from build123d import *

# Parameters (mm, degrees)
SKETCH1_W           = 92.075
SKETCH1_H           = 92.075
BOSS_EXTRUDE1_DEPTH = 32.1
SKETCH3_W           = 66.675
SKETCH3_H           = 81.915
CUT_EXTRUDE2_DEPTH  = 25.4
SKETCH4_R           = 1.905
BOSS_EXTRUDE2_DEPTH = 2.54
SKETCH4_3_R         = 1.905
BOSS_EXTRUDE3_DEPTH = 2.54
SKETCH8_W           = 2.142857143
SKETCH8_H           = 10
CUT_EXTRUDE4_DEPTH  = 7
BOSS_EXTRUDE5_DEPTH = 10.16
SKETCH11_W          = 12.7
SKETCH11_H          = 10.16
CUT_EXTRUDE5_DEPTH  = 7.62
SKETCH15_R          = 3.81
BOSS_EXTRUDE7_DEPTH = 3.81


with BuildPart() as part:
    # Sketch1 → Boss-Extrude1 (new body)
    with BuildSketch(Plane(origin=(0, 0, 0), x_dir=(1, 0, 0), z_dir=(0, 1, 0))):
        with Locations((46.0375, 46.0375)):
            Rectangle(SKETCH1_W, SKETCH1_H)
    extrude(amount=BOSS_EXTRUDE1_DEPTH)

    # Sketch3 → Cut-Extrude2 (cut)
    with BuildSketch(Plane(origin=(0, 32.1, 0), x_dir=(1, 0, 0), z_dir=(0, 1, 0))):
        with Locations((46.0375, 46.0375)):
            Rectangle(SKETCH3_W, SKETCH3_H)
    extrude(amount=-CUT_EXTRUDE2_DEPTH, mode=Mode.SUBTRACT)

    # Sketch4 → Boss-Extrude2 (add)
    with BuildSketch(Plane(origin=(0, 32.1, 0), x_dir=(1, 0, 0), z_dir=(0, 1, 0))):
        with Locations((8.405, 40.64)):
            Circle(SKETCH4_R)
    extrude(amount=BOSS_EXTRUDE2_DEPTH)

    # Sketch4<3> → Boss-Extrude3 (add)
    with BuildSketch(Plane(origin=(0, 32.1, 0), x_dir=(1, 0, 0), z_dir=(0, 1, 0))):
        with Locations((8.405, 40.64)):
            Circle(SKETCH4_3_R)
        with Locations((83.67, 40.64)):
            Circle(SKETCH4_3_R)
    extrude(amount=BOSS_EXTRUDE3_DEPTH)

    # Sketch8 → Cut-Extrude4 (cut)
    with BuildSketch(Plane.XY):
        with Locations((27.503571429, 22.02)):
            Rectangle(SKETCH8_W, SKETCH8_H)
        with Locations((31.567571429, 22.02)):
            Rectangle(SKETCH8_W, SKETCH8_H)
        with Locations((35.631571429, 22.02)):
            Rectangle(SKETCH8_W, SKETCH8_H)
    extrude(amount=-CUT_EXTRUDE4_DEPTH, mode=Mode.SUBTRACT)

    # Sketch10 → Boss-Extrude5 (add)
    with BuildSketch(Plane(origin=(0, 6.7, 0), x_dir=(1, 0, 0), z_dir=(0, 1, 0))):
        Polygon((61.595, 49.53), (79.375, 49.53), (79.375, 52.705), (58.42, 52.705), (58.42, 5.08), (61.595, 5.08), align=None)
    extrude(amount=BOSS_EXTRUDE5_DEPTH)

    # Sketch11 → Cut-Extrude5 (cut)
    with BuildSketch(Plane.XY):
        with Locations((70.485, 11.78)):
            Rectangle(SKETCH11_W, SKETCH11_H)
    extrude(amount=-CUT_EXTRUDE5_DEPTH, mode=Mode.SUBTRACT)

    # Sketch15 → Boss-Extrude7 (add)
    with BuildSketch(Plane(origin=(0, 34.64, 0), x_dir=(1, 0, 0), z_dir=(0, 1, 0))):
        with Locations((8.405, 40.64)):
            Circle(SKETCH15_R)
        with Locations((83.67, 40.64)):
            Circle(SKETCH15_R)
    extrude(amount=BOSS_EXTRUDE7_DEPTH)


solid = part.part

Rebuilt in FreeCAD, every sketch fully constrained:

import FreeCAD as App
import Part
import Sketcher
Q = App.Units.Quantity


def add_polygon(sketch, points):
    """Adds a closed chain of lines whose ends are joined by coincident constraints."""
    first, n = sketch.GeometryCount, len(points)
    for a, b in zip(points, points[1:] + points[:1]):
        sketch.addGeometry(Part.LineSegment(App.Vector(*a, 0), App.Vector(*b, 0)), False)
    for i in range(n):
        sketch.addConstraint(Sketcher.Constraint("Coincident", first + i, 2, first + (i + 1) % n, 1))

doc = App.newDocument("Part")
body = doc.addObject("PartDesign::Body", "Body")

# Sketch on XZ plane
sketch1 = doc.addObject("Sketcher::SketchObject", "Sketch")
body.addObject(sketch1)
sketch1.AttachmentSupport = (doc.XZ_Plane, [""])
sketch1.MapMode = "FlatFace"
add_polygon(sketch1, [(0, -92), (0, 0), (92, 0), (92, -92)])  # lines 0-3
sketch1.addConstraint([
    Sketcher.Constraint("Vertical", 0),
    Sketcher.Constraint("Horizontal", 1),
    Sketcher.Constraint("Vertical", 2),
    Sketcher.Constraint("Horizontal", 3),
    Sketcher.Constraint("Coincident", 0, 2, -1, 1),
    Sketcher.Constraint("Equal", 3, 0),
    Sketcher.Constraint("DistanceX", 1, 1, 1, 2, Q("3.625 in")),
])
pad1 = doc.addObject("PartDesign::Pad", "Pad")
body.addObject(pad1)
pad1.Profile = sketch1
pad1.Length = 32.1
pad1.Reversed = True

# Sketch on XZ plane
sketch2 = doc.addObject("Sketcher::SketchObject", "Sketch001")
body.addObject(sketch2)
sketch2.AttachmentSupport = (doc.XZ_Plane, [""])
sketch2.MapMode = "FlatFace"
sketch2.AttachmentOffset = App.Placement(App.Vector(0, 0, -32.1), App.Rotation())
add_polygon(sketch2, [(13, -87), (13, -5), (79, -5), (79, -87)])  # lines 0-3
sketch2.addConstraint([
    Sketcher.Constraint("Vertical", 0),
    Sketcher.Constraint("Horizontal", 1),
    Sketcher.Constraint("Vertical", 2),
    Sketcher.Constraint("Horizontal", 3),
    Sketcher.Constraint("DistanceX", -1, 1, 0, 2, Q("0.5 in")),
    Sketcher.Constraint("DistanceY", 0, 2, -1, 1, Q("0.2 in")),
    Sketcher.Constraint("DistanceX", 1, 1, 1, 2, Q("2.625 in")),
    Sketcher.Constraint("DistanceY", 0, 1, 0, 2, Q("3.225 in")),
])
pocket1 = doc.addObject("PartDesign::Pocket", "Pocket")
body.addObject(pocket1)
pocket1.Profile = sketch2
pocket1.Length = Q("1 in")
pocket1.Reversed = True

# Sketch on XZ plane
sketch3 = doc.addObject("Sketcher::SketchObject", "Sketch002")
body.addObject(sketch3)
sketch3.AttachmentSupport = (doc.XZ_Plane, [""])
sketch3.MapMode = "FlatFace"
sketch3.AttachmentOffset = App.Placement(App.Vector(0, 0, -32.1), App.Rotation())
sketch3.addGeometry(Part.Circle(App.Vector(8.4, -40.6, 0), App.Vector(0, 0, 1), 1.9), False)
sketch3.addConstraint([
    Sketcher.Constraint("Diameter", 0, Q("0.15 in")),
    Sketcher.Constraint("DistanceY", 0, 3, -1, 1, Q("1.6 in")),
    Sketcher.Constraint("DistanceX", -1, 1, 0, 3, Q("8.405 mm")),
])
pad2 = doc.addObject("PartDesign::Pad", "Pad001")
body.addObject(pad2)
pad2.Profile = sketch3
pad2.Length = Q("0.1 in")
pad2.Reversed = True

# Sketch on XZ plane
sketch4 = doc.addObject("Sketcher::SketchObject", "Sketch003")
body.addObject(sketch4)
sketch4.AttachmentSupport = (doc.XZ_Plane, [""])
sketch4.MapMode = "FlatFace"
sketch4.AttachmentOffset = App.Placement(App.Vector(0, 0, -32.1), App.Rotation())
sketch4.addGeometry([
    Part.Circle(App.Vector(8.4, -40.6, 0), App.Vector(0, 0, 1), 1.9),
    Part.Circle(App.Vector(83.7, -40.6, 0), App.Vector(0, 0, 1), 1.9),
], False)
sketch4.addConstraint([
    Sketcher.Constraint("Equal", 0, 1),
    Sketcher.Constraint("Horizontal", 0, 3, 1, 3),
    Sketcher.Constraint("Diameter", 0, Q("0.15 in")),
    Sketcher.Constraint("DistanceY", 0, 3, -1, 1, Q("1.6 in")),
    Sketcher.Constraint("DistanceX", -1, 1, 0, 3, Q("8.405 mm")),
    Sketcher.Constraint("DistanceX", -1, 1, 1, 3, Q("83.67 mm")),
])
pad3 = doc.addObject("PartDesign::Pad", "Pad002")
body.addObject(pad3)
pad3.Profile = sketch4
pad3.Length = Q("0.1 in")
pad3.Reversed = True

# Sketch on XY plane
sketch5 = doc.addObject("Sketcher::SketchObject", "Sketch004")
body.addObject(sketch5)
sketch5.AttachmentSupport = (doc.XY_Plane, [""])
sketch5.MapMode = "FlatFace"
add_polygon(sketch5, [(26.4, 27), (26.4, 17), (28.6, 17), (28.6, 27)])  # lines 0-3
add_polygon(sketch5, [(30.5, 27), (30.5, 17), (32.6, 17), (32.6, 27)])  # lines 4-7
add_polygon(sketch5, [(34.6, 27), (34.6, 17), (36.7, 17), (36.7, 27)])  # lines 8-11
sketch5.addConstraint([
    Sketcher.Constraint("Vertical", 0),
    Sketcher.Constraint("Horizontal", 1),
    Sketcher.Constraint("Vertical", 2),
    Sketcher.Constraint("Horizontal", 3),
    Sketcher.Constraint("Vertical", 4),
    Sketcher.Constraint("Horizontal", 5),
    Sketcher.Constraint("Vertical", 6),
    Sketcher.Constraint("Horizontal", 7),
    Sketcher.Constraint("Vertical", 8),
    Sketcher.Constraint("Horizontal", 9),
    Sketcher.Constraint("Vertical", 10),
    Sketcher.Constraint("Horizontal", 11),
    Sketcher.Constraint("Horizontal", 1, 2, 4, 2),
    Sketcher.Constraint("Horizontal", 3, 2, 6, 2),
    Sketcher.Constraint("Horizontal", 5, 2, 8, 2),
    Sketcher.Constraint("Horizontal", 7, 2, 10, 2),
    Sketcher.Constraint("Equal", 3, 5),
    Sketcher.Constraint("Equal", 7, 9),
    Sketcher.Constraint("DistanceX", 0, 2, 4, 2, Q("0.16 in")),
    Sketcher.Constraint("DistanceX", 4, 2, 8, 2, Q("0.16 in")),
    Sketcher.Constraint("DistanceX", -1, 1, 1, 2, Q("1.125 in")),
    Sketcher.Constraint("DistanceY", 0, 2, 0, 1, Q("10 mm")),
    Sketcher.Constraint("DistanceY", -1, 1, 0, 2, Q("17.02 mm")),
    Sketcher.Constraint("DistanceX", 1, 1, 1, 2, Q("2.142857 mm")),
])
pocket2 = doc.addObject("PartDesign::Pocket", "Pocket001")
body.addObject(pocket2)
pocket2.Profile = sketch5
pocket2.Length = 7

# Sketch on XZ plane
sketch6 = doc.addObject("Sketcher::SketchObject", "Sketch005")
body.addObject(sketch6)
sketch6.AttachmentSupport = (doc.XZ_Plane, [""])
sketch6.MapMode = "FlatFace"
sketch6.AttachmentOffset = App.Placement(App.Vector(0, 0, -6.7), App.Rotation())
add_polygon(sketch6, [(61.6, -49.5), (79.4, -49.5), (79.4, -52.7), (58.4, -52.7), (58.4, -5.1), (61.6, -5.1)])  # lines 0-5
sketch6.addConstraint([
    Sketcher.Constraint("Horizontal", 0),
    Sketcher.Constraint("Vertical", 1),
    Sketcher.Constraint("Horizontal", 2),
    Sketcher.Constraint("Vertical", 3),
    Sketcher.Constraint("Horizontal", 4),
    Sketcher.Constraint("Vertical", 5),
    Sketcher.Constraint("Equal", 4, 1),
    Sketcher.Constraint("DistanceX", 0, 1, 0, 2, Q("0.7 in")),
    Sketcher.Constraint("DistanceY", 5, 2, 5, 1, Q("1.75 in")),
    Sketcher.Constraint("DistanceX", -1, 1, 2, 2, Q("2.3 in")),
    Sketcher.Constraint("DistanceY", 3, 2, -1, 1, Q("0.2 in")),
    Sketcher.Constraint("DistanceX", 2, 2, 2, 1, Q("0.825 in")),
])
pad4 = doc.addObject("PartDesign::Pad", "Pad003")
body.addObject(pad4)
pad4.Profile = sketch6
pad4.Length = Q("0.4 in")
pad4.Reversed = True

# Sketch on XY plane
sketch7 = doc.addObject("Sketcher::SketchObject", "Sketch006")
body.addObject(sketch7)
sketch7.AttachmentSupport = (doc.XY_Plane, [""])
sketch7.MapMode = "FlatFace"
add_polygon(sketch7, [(64, 17), (64, 7), (77, 7), (77, 17)])  # lines 0-3
sketch7.addConstraint([
    Sketcher.Constraint("Vertical", 0),
    Sketcher.Constraint("Horizontal", 1),
    Sketcher.Constraint("Vertical", 2),
    Sketcher.Constraint("Horizontal", 3),
    Sketcher.Constraint("DistanceX", 1, 1, 1, 2, Q("0.5 in")),
    Sketcher.Constraint("DistanceY", 0, 2, 0, 1, Q("0.4 in")),
    Sketcher.Constraint("DistanceX", -1, 1, 0, 2, Q("2.525 in")),
    Sketcher.Constraint("DistanceY", -1, 1, 0, 2, Q("6.7 mm")),
])
pocket3 = doc.addObject("PartDesign::Pocket", "Pocket002")
body.addObject(pocket3)
pocket3.Profile = sketch7
pocket3.Length = Q("0.3 in")

# Sketch on XZ plane
sketch8 = doc.addObject("Sketcher::SketchObject", "Sketch007")
body.addObject(sketch8)
sketch8.AttachmentSupport = (doc.XZ_Plane, [""])
sketch8.MapMode = "FlatFace"
sketch8.AttachmentOffset = App.Placement(App.Vector(0, 0, -34.64), App.Rotation())
sketch8.addGeometry([
    Part.Circle(App.Vector(8.4, -40.6, 0), App.Vector(0, 0, 1), 3.8),
    Part.Circle(App.Vector(83.7, -40.6, 0), App.Vector(0, 0, 1), 3.8),
], False)
sketch8.addConstraint([
    Sketcher.Constraint("Equal", 0, 1),
    Sketcher.Constraint("Horizontal", 0, 3, 1, 3),
    Sketcher.Constraint("Diameter", 0, Q("0.3 in")),
    Sketcher.Constraint("DistanceY", 0, 3, -1, 1, Q("1.6 in")),
    Sketcher.Constraint("DistanceX", -1, 1, 0, 3, Q("8.405 mm")),
    Sketcher.Constraint("DistanceX", -1, 1, 1, 3, Q("83.67 mm")),
])
pad5 = doc.addObject("PartDesign::Pad", "Pad004")
body.addObject(pad5)
pad5.Profile = sketch8
pad5.Length = Q("0.15 in")
pad5.Reversed = True

doc.recompute()
